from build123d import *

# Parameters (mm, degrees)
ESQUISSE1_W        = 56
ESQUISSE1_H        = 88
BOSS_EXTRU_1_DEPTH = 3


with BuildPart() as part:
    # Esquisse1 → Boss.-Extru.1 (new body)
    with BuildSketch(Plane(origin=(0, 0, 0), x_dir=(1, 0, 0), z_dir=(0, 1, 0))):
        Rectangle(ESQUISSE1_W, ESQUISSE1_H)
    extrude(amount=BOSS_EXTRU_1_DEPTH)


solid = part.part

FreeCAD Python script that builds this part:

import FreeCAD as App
import Part
import Sketcher
from FreeCAD import Vector


def add_polygon(sketch, points):
    """Adds a closed chain of lines whose ends are joined by coincident constraints."""
    first, n = sketch.GeometryCount, len(points)
    for a, b in zip(points, points[1:] + points[:1]):
        sketch.addGeometry(Part.LineSegment(App.Vector(*a, 0), App.Vector(*b, 0)), False)
    for i in range(n):
        sketch.addConstraint(Sketcher.Constraint("Coincident", first + i, 2, first + (i + 1) % n, 1))

doc = App.newDocument("Part")
params = doc.addObject("Spreadsheet::Sheet", "Params")
for row, (alias, value) in enumerate([
    ("sketch1_width", "56 mm"),
    ("sketch1_height", "88 mm"),
    ("pad1_length", "3 mm"),
], start=1):
    params.set(f"A{row}", alias)
    params.set(f"B{row}", "=" + value)
    params.setAlias(f"B{row}", alias)

body = doc.addObject("PartDesign::Body", "Body")

# Sketch on XZ plane
sketch1 = body.newObject("Sketcher::SketchObject", "Sketch")
sketch1.AttachmentSupport = (doc.getObject("XZ_Plane"), [""])
sketch1.MapMode = "FlatFace"
add_polygon(sketch1, [(-28, -44), (-28, 44), (28, 44), (28, -44)])  # lines 0-3
sketch1.addConstraint([
    Sketcher.Constraint("Vertical", 0),
    Sketcher.Constraint("Horizontal", 1),
    Sketcher.Constraint("Vertical", 2),
    Sketcher.Constraint("Horizontal", 3),
    Sketcher.Constraint("Symmetric", 0, 2, 2, 2, -1, 1),
    Sketcher.Constraint("DistanceX", 1, 1, 1, 2, 56.0),
    Sketcher.Constraint("DistanceY", 0, 1, 0, 2, 88.0),
])
sketch1.setExpression("Constraints[9]", "Params.sketch1_width")
sketch1.setExpression("Constraints[10]", "Params.sketch1_height")
pad1 = body.newObject("PartDesign::Pad", "Pad")
pad1.Profile = sketch1
pad1.setExpression("Length", "Params.pad1_length")
pad1.Reversed = True

doc.recompute()
